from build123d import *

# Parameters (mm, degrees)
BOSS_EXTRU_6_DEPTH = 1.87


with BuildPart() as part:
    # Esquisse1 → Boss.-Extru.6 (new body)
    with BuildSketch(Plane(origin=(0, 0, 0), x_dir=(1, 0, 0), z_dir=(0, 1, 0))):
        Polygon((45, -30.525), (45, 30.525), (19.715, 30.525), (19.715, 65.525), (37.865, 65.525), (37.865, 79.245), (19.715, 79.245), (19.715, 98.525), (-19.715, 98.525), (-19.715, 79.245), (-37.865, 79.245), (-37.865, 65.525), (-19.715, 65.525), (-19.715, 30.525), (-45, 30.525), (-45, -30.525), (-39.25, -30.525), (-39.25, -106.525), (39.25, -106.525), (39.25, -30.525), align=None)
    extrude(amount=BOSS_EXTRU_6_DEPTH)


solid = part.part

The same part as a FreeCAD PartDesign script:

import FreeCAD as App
import Part
import Sketcher

doc = App.newDocument("Part")
body = doc.addObject("PartDesign::Body", "Body")

sketch1 = body.newObject("Sketcher::SketchObject", "Sketch")
sketch1.AttachmentSupport = (doc.getObject("XZ_Plane"), [""])
sketch1.MapMode = "FlatFace"
sketch1.addGeometry([
    Part.LineSegment(App.Vector(45, 31, 0), App.Vector(45, -31, 0)),
    Part.LineSegment(App.Vector(45, -31, 0), App.Vector(20, -31, 0)),
    Part.LineSegment(App.Vector(20, -31, 0), App.Vector(20, -66, 0)),
    Part.LineSegment(App.Vector(20, -66, 0), App.Vector(38, -66, 0)),
    Part.LineSegment(App.Vector(38, -66, 0), App.Vector(38, -79, 0)),
    Part.LineSegment(App.Vector(38, -79, 0), App.Vector(20, -79, 0)),
    Part.LineSegment(App.Vector(20, -79, 0), App.Vector(20, -99, 0)),
    Part.LineSegment(App.Vector(20, -99, 0), App.Vector(-20, -99, 0)),
    Part.LineSegment(App.Vector(-20, -99, 0), App.Vector(-20, -79, 0)),
    Part.LineSegment(App.Vector(-20, -79, 0), App.Vector(-38, -79, 0)),
    Part.LineSegment(App.Vector(-38, -79, 0), App.Vector(-38, -66, 0)),
    Part.LineSegment(App.Vector(-38, -66, 0), App.Vector(-20, -66, 0)),
    Part.LineSegment(App.Vector(-20, -66, 0), App.Vector(-20, -31, 0)),
    Part.LineSegment(App.Vector(-20, -31, 0), App.Vector(-45, -31, 0)),
    Part.LineSegment(App.Vector(-45, -31, 0), App.Vector(-45, 31, 0)),
    Part.LineSegment(App.Vector(-45, 31, 0), App.Vector(-39, 31, 0)),
    Part.LineSegment(App.Vector(-39, 31, 0), App.Vector(-39, 107, 0)),
    Part.LineSegment(App.Vector(-39, 107, 0), App.Vector(39, 107, 0)),
    Part.LineSegment(App.Vector(39, 107, 0), App.Vector(39, 31, 0)),
    Part.LineSegment(App.Vector(39, 31, 0), App.Vector(45, 31, 0)),
], False)
sketch1.addConstraint([
    Sketcher.Constraint("Coincident", 0, 2, 1, 1),
    Sketcher.Constraint("Coincident", 1, 2, 2, 1),
    Sketcher.Constraint("Coincident", 2, 2, 3, 1),
    Sketcher.Constraint("Coincident", 3, 2, 4, 1),
    Sketcher.Constraint("Coincident", 4, 2, 5, 1),
    Sketcher.Constraint("Coincident", 5, 2, 6, 1),
    Sketcher.Constraint("Coincident", 6, 2, 7, 1),
    Sketcher.Constraint("Coincident", 7, 2, 8, 1),
    Sketcher.Constraint("Coincident", 8, 2, 9, 1),
    Sketcher.Constraint("Coincident", 9, 2, 10, 1),
    Sketcher.Constraint("Coincident", 10, 2, 11, 1),
    Sketcher.Constraint("Coincident", 11, 2, 12, 1),
    Sketcher.Constraint("Coincident", 12, 2, 13, 1),
    Sketcher.Constraint("Coincident", 13, 2, 14, 1),
    Sketcher.Constraint("Coincident", 14, 2, 15, 1),
    Sketcher.Constraint("Coincident", 15, 2, 16, 1),
    Sketcher.Constraint("Coincident", 16, 2, 17, 1),
    Sketcher.Constraint("Coincident", 17, 2, 18, 1),
    Sketcher.Constraint("Coincident", 18, 2, 19, 1),
    Sketcher.Constraint("Coincident", 19, 2, 0, 1),
    Sketcher.Constraint("Vertical", 0),
    Sketcher.Constraint("Horizontal", 1),
    Sketcher.Constraint("Vertical", 2),
    Sketcher.Constraint("Horizontal", 3),
    Sketcher.Constraint("Vertical", 4),
    Sketcher.Constraint("Horizontal", 5),
    Sketcher.Constraint("Vertical", 6),
    Sketcher.Constraint("Horizontal", 7),
    Sketcher.Constraint("Vertical", 8),
    Sketcher.Constraint("Horizontal", 9),
    Sketcher.Constraint("Vertical", 10),
    Sketcher.Constraint("Horizontal", 11),
    Sketcher.Constraint("Vertical", 12),
    Sketcher.Constraint("Horizontal", 13),
    Sketcher.Constraint("Vertical", 14),
    Sketcher.Constraint("Horizontal", 15),
    Sketcher.Constraint("Vertical", 16),
    Sketcher.Constraint("Horizontal", 17),
    Sketcher.Constraint("Vertical", 18),
    Sketcher.Constraint("Horizontal", 19),
    Sketcher.Constraint("Symmetric", 0, 2, 14, 2, -1, 1),
    Sketcher.Constraint("Symmetric", 5, 2, 8, 2, -2),
    Sketcher.Constraint("Symmetric", 3, 2, 10, 2, -2),
    Sketcher.Constraint("Symmetric", 1, 2, 12, 2, -2),
    Sketcher.Constraint("Symmetric", 15, 2, 18, 2, -2),
    Sketcher.Constraint("Vertical", 2, 2, 5, 2),
    Sketcher.Constraint("DistanceY", 2, 2, 2, 1, 35.0),
    Sketcher.Constraint("DistanceY", 16, 1, 16, 2, 76.0),
    Sketcher.Constraint("DistanceX", 17, 1, 17, 2, 78.5),
    Sketcher.Constraint("DistanceX", -1, 1, 0, 2, 45.0),
    Sketcher.Constraint("DistanceY", 6, 2, 2, 2, 33.0),
    Sketcher.Constraint("DistanceX", 3, 1, 3, 2, 18.15),
    Sketcher.Constraint("DistanceX", 7, 2, 7, 1, 39.43),
    Sketcher.Constraint("DistanceY", 0, 2, 0, 1, 61.05),
    Sketcher.Constraint("DistanceY", 4, 2, 4, 1, 13.72),
])
pad1 = body.newObject("PartDesign::Pad", "Pad")
pad1.Profile = sketch1
pad1.Length = 1.87
pad1.Reversed = True

doc.recompute()
